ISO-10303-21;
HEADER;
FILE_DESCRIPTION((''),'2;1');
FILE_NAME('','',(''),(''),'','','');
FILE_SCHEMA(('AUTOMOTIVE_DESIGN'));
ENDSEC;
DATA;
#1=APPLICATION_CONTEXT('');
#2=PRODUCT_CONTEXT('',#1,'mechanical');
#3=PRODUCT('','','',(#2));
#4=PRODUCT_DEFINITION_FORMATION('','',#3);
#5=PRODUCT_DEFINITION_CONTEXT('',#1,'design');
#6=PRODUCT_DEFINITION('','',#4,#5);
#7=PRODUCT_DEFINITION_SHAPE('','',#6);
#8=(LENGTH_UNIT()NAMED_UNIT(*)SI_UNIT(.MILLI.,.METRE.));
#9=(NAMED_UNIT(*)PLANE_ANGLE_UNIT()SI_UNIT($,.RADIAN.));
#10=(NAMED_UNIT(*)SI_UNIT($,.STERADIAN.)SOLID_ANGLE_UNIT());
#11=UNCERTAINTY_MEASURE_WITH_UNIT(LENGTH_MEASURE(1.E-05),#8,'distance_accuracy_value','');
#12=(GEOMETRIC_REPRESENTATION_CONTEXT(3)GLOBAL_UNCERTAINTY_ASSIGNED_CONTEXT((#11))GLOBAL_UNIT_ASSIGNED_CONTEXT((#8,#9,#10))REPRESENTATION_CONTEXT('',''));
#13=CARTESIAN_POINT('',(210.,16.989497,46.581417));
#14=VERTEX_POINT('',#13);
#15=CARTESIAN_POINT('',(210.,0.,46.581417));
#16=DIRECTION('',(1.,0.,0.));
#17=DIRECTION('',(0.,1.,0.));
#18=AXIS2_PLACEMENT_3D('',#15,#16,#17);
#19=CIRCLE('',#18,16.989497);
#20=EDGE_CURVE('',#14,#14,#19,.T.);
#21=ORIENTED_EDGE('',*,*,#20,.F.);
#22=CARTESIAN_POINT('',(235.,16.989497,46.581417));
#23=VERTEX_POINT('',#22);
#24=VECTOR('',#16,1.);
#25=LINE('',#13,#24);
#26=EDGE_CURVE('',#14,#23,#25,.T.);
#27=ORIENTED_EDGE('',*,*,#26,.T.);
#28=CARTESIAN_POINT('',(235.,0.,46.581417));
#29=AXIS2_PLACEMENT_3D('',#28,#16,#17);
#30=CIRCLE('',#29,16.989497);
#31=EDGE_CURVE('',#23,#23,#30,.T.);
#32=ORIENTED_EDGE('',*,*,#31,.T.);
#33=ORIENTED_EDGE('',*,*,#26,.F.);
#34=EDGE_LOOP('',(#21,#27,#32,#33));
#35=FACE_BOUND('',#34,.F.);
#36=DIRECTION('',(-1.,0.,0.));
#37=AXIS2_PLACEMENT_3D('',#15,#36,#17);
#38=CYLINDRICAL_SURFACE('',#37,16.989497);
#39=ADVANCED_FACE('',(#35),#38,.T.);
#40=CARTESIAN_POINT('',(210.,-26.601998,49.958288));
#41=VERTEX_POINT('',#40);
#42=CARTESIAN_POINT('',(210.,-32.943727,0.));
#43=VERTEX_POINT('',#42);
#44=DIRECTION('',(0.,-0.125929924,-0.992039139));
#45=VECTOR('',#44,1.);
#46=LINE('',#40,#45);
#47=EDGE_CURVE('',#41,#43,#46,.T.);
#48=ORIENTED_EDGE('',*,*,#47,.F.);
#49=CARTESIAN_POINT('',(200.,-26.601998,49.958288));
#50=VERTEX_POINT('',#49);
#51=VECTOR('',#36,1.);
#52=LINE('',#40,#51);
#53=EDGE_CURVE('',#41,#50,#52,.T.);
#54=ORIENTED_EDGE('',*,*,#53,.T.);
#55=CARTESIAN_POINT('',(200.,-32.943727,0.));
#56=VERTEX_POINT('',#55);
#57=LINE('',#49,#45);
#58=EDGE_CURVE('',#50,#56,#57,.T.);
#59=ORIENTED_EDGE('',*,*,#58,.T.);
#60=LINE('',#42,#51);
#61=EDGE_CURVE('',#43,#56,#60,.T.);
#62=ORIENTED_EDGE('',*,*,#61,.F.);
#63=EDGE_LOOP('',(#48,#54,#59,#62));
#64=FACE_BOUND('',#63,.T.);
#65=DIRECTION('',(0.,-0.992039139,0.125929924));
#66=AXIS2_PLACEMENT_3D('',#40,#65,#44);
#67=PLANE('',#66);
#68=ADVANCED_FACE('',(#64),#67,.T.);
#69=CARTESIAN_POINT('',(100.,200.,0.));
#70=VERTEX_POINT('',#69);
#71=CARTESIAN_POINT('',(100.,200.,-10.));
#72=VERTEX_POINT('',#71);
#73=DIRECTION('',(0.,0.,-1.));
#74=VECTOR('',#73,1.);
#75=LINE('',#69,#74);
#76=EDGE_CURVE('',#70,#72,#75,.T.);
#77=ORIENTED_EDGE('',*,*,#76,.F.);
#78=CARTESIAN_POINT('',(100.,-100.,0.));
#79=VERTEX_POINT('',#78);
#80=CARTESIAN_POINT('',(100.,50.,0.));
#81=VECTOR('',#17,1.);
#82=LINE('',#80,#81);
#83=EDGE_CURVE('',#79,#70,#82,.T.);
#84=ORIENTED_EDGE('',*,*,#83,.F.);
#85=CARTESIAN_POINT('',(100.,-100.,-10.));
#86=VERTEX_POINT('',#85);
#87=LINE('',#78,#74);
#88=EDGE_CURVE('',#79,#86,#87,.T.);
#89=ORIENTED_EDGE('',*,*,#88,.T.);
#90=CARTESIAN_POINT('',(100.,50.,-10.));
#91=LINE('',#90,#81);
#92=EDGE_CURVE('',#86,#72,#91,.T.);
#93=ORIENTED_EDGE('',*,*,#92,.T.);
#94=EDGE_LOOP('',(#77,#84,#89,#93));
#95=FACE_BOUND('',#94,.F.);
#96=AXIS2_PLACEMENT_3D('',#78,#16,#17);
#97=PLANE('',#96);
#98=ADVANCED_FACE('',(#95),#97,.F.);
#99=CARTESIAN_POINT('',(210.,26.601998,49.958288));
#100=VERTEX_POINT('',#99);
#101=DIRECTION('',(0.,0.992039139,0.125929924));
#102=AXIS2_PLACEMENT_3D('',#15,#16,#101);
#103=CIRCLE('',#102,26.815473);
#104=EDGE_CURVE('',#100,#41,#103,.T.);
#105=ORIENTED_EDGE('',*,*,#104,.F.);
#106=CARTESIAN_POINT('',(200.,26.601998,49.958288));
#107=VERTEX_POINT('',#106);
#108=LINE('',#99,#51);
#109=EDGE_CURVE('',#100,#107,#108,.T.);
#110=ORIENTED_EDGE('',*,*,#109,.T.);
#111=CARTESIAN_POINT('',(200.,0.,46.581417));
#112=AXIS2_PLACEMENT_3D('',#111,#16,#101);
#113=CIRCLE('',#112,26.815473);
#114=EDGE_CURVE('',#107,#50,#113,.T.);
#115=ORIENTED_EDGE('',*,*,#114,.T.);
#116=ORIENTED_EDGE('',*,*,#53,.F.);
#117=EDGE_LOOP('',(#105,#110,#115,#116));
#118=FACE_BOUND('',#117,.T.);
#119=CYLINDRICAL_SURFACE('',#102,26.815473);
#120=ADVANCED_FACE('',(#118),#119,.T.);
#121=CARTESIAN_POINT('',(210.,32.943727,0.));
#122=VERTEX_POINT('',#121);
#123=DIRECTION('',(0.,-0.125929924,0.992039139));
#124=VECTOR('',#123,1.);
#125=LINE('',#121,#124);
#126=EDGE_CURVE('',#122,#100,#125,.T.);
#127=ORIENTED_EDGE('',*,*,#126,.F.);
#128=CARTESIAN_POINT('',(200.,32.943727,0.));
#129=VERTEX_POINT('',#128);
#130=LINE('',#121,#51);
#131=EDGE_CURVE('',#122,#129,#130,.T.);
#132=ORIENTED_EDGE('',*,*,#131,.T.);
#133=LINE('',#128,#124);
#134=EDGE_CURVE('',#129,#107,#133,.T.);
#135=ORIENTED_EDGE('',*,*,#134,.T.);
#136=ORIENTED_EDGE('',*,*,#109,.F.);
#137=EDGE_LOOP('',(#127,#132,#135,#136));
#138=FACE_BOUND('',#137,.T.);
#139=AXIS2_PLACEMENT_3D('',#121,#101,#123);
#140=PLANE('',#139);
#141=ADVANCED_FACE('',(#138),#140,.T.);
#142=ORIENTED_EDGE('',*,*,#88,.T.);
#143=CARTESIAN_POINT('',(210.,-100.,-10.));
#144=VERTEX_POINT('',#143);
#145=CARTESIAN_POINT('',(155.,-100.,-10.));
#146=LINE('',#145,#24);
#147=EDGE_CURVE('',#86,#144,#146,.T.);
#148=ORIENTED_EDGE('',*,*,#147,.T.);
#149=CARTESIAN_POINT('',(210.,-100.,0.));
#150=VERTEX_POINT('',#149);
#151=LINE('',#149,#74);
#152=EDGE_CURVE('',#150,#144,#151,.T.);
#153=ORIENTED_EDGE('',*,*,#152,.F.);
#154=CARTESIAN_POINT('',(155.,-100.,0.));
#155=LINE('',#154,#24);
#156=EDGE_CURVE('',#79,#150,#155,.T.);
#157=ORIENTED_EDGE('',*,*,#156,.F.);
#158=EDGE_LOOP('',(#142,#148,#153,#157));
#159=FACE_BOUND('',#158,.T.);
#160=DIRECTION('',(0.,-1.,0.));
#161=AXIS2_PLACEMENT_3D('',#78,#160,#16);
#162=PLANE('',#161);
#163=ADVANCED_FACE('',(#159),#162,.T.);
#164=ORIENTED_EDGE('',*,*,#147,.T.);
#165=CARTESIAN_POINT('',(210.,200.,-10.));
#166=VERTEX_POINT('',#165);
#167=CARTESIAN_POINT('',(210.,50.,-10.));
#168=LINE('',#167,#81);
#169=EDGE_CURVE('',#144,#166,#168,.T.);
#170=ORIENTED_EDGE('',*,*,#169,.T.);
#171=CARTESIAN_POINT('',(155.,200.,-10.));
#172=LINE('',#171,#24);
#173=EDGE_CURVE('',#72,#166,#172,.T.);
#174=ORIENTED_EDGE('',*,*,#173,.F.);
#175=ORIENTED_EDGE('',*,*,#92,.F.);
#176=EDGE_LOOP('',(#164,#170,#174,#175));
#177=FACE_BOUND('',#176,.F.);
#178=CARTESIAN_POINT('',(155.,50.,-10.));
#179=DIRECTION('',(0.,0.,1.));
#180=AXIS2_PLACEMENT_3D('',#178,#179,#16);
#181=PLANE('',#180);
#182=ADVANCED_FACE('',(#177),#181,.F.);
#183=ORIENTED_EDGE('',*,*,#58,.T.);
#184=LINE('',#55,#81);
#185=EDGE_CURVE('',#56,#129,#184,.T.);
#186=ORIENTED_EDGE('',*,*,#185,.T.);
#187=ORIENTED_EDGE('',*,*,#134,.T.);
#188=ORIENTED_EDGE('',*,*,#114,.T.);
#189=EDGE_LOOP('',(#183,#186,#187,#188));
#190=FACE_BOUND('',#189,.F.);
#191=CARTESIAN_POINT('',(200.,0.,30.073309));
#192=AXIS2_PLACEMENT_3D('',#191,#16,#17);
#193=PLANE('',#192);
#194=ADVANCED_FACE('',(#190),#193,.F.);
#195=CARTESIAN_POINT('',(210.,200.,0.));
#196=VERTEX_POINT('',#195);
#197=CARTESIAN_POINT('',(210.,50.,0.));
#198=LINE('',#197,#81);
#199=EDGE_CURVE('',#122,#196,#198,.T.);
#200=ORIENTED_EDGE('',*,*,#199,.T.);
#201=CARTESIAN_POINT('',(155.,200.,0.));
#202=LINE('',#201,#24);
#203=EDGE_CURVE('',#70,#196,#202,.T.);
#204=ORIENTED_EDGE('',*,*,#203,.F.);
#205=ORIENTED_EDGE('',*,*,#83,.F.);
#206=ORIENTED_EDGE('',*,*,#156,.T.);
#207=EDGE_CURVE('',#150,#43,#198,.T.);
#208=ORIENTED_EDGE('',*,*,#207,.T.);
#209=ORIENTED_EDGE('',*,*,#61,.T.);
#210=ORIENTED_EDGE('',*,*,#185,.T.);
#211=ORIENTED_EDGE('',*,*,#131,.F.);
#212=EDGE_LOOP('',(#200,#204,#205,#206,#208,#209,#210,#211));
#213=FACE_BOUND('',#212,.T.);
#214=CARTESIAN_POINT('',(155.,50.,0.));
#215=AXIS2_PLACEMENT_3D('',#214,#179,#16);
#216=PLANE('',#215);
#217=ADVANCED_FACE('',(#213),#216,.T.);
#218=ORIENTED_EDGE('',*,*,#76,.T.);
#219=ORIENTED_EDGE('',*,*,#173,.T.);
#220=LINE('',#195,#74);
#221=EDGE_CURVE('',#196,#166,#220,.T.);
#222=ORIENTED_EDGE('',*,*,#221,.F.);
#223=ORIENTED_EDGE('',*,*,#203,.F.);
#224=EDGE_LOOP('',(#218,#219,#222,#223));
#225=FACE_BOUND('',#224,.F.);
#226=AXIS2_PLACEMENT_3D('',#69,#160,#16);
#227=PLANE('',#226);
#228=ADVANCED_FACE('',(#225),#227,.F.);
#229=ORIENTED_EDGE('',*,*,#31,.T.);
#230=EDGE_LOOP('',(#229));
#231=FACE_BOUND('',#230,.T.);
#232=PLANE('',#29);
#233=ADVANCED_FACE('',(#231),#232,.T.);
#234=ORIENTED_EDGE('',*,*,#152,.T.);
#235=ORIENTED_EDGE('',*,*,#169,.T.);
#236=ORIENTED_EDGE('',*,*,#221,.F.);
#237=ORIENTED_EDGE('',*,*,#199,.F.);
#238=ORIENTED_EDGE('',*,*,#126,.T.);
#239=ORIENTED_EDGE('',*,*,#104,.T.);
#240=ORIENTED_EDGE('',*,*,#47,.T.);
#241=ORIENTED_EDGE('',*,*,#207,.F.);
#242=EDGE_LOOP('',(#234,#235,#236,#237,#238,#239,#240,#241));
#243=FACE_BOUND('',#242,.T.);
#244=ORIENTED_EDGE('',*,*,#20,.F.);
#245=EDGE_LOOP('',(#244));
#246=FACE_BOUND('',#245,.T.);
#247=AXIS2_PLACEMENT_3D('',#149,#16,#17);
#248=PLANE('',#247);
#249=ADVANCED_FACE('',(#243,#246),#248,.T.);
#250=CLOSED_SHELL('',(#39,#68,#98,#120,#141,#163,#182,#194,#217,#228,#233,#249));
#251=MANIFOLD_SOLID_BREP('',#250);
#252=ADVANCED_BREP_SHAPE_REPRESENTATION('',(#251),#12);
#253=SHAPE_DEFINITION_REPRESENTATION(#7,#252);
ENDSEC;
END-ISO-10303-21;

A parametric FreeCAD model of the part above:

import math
import FreeCAD as App
import Part
import Sketcher

V = App.Vector

doc = App.newDocument("Part")
body = doc.addObject("PartDesign::Body", "Body")

# Sketch on XY plane
sketch1 = body.newObject("Sketcher::SketchObject", "Sketch")
sketch1.AttachmentSupport = (doc.getObject("XY_Plane"), [""])
sketch1.MapMode = "FlatFace"
sketch1.addGeometry(Part.LineSegment(V(100, 200, 0), V(100, -100, 0)), False)
sketch1.addGeometry(Part.LineSegment(V(100, -100, 0), V(210, -100, 0)), False)
sketch1.addGeometry(Part.LineSegment(V(210, -100, 0), V(210, 200, 0)), False)
sketch1.addGeometry(Part.LineSegment(V(210, 200, 0), V(100, 200, 0)), False)
sketch1.addConstraint(Sketcher.Constraint("Coincident", 0, 2, 1, 1))
sketch1.addConstraint(Sketcher.Constraint("Coincident", 1, 2, 2, 1))
sketch1.addConstraint(Sketcher.Constraint("Coincident", 2, 2, 3, 1))
sketch1.addConstraint(Sketcher.Constraint("Coincident", 3, 2, 0, 1))
sketch1.addConstraint(Sketcher.Constraint("Vertical", 0))
sketch1.addConstraint(Sketcher.Constraint("Horizontal", 1))
sketch1.addConstraint(Sketcher.Constraint("Vertical", 2))
sketch1.addConstraint(Sketcher.Constraint("Horizontal", 3))
sketch1.addConstraint(Sketcher.Constraint("DistanceX", 1, 1, 1, 2, 110.0))
sketch1.addConstraint(Sketcher.Constraint("DistanceY", 0, 2, 0, 1, 300.0))
sketch1.addConstraint(Sketcher.Constraint("DistanceX", -1, 1, 0, 2, 100.0))
sketch1.addConstraint(Sketcher.Constraint("DistanceY", 0, 2, -1, 1, 100.0))
pad1 = body.newObject("PartDesign::Pad", "Pad")
pad1.Profile = sketch1
pad1.Length = 10
pad1.Reversed = True

# Sketch on YZ plane
sketch2 = body.newObject("Sketcher::SketchObject", "Sketch001")
sketch2.AttachmentSupport = (doc.getObject("YZ_Plane"), [""])
sketch2.MapMode = "FlatFace"
sketch2.AttachmentOffset = App.Placement(V(0, 0, 210), App.Rotation())
sketch2.addGeometry(Part.ArcOfCircle(Part.Circle(V(0, 46.581417, 0), V(0, 0, 1), 26.815473), math.radians(7.234461), math.radians(172.765539)), False)
sketch2.addGeometry(Part.LineSegment(V(-26.601998, 49.958288, 0), V(-32.943727, 0, 0)), False)
sketch2.addGeometry(Part.LineSegment(V(-32.943727, 0, 0), V(32.943727, 0, 0)), False)
sketch2.addGeometry(Part.LineSegment(V(32.943727, 0, 0), V(26.601998, 49.958288, 0)), False)
sketch2.addConstraint(Sketcher.Constraint("Tangent", 0, 2, 1, 1))
sketch2.addConstraint(Sketcher.Constraint("Coincident", 1, 2, 2, 1))
sketch2.addConstraint(Sketcher.Constraint("Coincident", 2, 2, 3, 1))
sketch2.addConstraint(Sketcher.Constraint("Tangent", 3, 2, 0, 1))
sketch2.addConstraint(Sketcher.Constraint("Horizontal", 2))
sketch2.addConstraint(Sketcher.Constraint("Symmetric", 1, 2, 2, 2, -1, 1))
sketch2.addConstraint(Sketcher.Constraint("PointOnObject", 0, 3, -2))
sketch2.addConstraint(Sketcher.Constraint("DistanceX", 0, 2, -1, 1, 26.601998))
sketch2.addConstraint(Sketcher.Constraint("Radius", 0, 26.815473))
sketch2.addConstraint(Sketcher.Constraint("Distance", 1, 50.35919))
pad2 = body.newObject("PartDesign::Pad", "Pad001")
pad2.Profile = sketch2
pad2.Length = 10
pad2.Reversed = True

# Sketch on YZ plane
sketch3 = body.newObject("Sketcher::SketchObject", "Sketch002")
sketch3.AttachmentSupport = (doc.getObject("YZ_Plane"), [""])
sketch3.MapMode = "FlatFace"
sketch3.AttachmentOffset = App.Placement(V(0, 0, 210), App.Rotation())
sketch3.addGeometry(Part.Circle(V(0, 46.581417, 0), V(0, 0, 1), 16.989497), False)
sketch3.addConstraint(Sketcher.Constraint("PointOnObject", 0, 3, -2))
sketch3.addConstraint(Sketcher.Constraint("Diameter", 0, 33.978994))
sketch3.addConstraint(Sketcher.Constraint("DistanceY", -1, 1, 0, 3, 46.581417))
pad3 = body.newObject("PartDesign::Pad", "Pad002")
pad3.Profile = sketch3
pad3.Length = 25

doc.recompute()
